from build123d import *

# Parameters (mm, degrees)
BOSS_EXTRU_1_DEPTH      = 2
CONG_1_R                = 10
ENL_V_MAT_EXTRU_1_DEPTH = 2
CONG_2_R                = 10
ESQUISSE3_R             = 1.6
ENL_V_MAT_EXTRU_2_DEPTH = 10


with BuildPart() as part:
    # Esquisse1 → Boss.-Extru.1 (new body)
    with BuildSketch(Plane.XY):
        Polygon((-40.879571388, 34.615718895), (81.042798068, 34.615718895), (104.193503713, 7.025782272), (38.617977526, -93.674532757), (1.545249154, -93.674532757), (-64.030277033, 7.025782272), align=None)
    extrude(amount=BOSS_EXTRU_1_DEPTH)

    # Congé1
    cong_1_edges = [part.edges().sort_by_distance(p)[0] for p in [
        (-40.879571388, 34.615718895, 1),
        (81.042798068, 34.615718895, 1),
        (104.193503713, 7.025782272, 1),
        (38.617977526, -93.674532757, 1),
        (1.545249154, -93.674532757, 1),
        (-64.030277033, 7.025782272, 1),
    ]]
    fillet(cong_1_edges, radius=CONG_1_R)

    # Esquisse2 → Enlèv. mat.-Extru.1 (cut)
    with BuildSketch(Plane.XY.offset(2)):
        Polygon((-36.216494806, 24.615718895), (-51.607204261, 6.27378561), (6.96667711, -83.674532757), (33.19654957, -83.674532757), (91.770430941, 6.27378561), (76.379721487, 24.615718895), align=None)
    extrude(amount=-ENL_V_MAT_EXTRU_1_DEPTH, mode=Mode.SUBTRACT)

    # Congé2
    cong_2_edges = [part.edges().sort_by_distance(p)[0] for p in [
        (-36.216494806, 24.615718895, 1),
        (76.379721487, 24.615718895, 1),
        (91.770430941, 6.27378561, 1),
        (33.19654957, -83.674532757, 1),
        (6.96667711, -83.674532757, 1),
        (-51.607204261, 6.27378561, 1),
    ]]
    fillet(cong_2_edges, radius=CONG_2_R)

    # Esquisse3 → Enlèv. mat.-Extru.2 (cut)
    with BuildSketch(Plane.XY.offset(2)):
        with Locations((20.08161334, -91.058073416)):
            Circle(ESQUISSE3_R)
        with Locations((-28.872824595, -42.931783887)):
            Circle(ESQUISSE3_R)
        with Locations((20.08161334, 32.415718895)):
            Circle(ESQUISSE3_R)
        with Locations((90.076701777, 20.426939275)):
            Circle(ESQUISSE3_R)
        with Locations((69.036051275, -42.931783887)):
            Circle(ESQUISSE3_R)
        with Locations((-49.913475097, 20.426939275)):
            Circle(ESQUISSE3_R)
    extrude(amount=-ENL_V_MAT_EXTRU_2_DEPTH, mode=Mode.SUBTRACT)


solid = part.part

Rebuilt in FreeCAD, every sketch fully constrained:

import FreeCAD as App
import Part
import Sketcher
from FreeCAD import Vector
Q = App.Units.Quantity


def edges_at(feature, points):
    """Names of the edges that pass closest to the given points."""
    edges = feature.Shape.Edges
    near = lambda p: min(range(len(edges)), key=lambda i: edges[i].distToShape(Part.Vertex(*p))[0])
    return sorted({f"Edge{near(p) + 1}" for p in points})

doc = App.newDocument("Part")
body = doc.addObject("PartDesign::Body", "Body")

# Sketch on XY plane
sketch1 = body.newObject("Sketcher::SketchObject", "Sketch")
sketch1.AttachmentSupport = (doc.getObject("XY_Plane"), [""])
sketch1.MapMode = "FlatFace"
sketch1.addGeometry(Part.LineSegment(Vector(81, 35, 0), Vector(-41, 35, 0)), False)
sketch1.addGeometry(Part.LineSegment(Vector(-41, 35, 0), Vector(-64, 7, 0)), False)
sketch1.addGeometry(Part.LineSegment(Vector(-64, 7, 0), Vector(2, -94, 0)), False)
sketch1.addGeometry(Part.LineSegment(Vector(2, -94, 0), Vector(39, -94, 0)), False)
sketch1.addGeometry(Part.LineSegment(Vector(39, -94, 0), Vector(104, 7, 0)), False)
sketch1.addGeometry(Part.LineSegment(Vector(104, 7, 0), Vector(81, 35, 0)), False)
sketch1.addConstraint(Sketcher.Constraint("Coincident", 0, 2, 1, 1))
sketch1.addConstraint(Sketcher.Constraint("Coincident", 1, 2, 2, 1))
sketch1.addConstraint(Sketcher.Constraint("Coincident", 2, 2, 3, 1))
sketch1.addConstraint(Sketcher.Constraint("Coincident", 3, 2, 4, 1))
sketch1.addConstraint(Sketcher.Constraint("Coincident", 4, 2, 5, 1))
sketch1.addConstraint(Sketcher.Constraint("Coincident", 5, 2, 0, 1))
sketch1.addConstraint(Sketcher.Constraint("Horizontal", 0))
sketch1.addConstraint(Sketcher.Constraint("Horizontal", 3))
sketch1.addConstraint(Sketcher.Constraint("Horizontal", 1, 2, 4, 2))
sketch1.addConstraint(Sketcher.Constraint("Equal", 2, 4))
sketch1.addConstraint(Sketcher.Constraint("Equal", 1, 5))
sketch1.addConstraint(Sketcher.Constraint("Angle", 1, Q("-130 deg")))
sketch1.addConstraint(Sketcher.Constraint("DistanceX", 0, 2, 0, 1, 121.922369))
sketch1.addConstraint(Sketcher.Constraint("DistanceX", 3, 1, 3, 2, 37.072728))
sketch1.addConstraint(Sketcher.Constraint("DistanceX", -1, 1, 5, 2, 81.042798))
sketch1.addConstraint(Sketcher.Constraint("DistanceY", -1, 1, 0, 2, 34.615719))
sketch1.addConstraint(Sketcher.Constraint("DistanceY", 2, 2, 0, 2, 128.290252))
sketch1.addConstraint(Sketcher.Constraint("DistanceX", 1, 2, 4, 2, 168.223781))
pad1 = body.newObject("PartDesign::Pad", "Pad")
pad1.Profile = sketch1
pad1.Length = 2
doc.recompute()

fillet = body.newObject("PartDesign::Fillet", "Fillet")
fillet.Base = (pad1, edges_at(pad1, [
    (-40.88, 34.616, 1),
    (81.043, 34.616, 1),
    (104.194, 7.026, 1),
    (38.618, -93.675, 1),
    (1.545, -93.675, 1),
    (-64.03, 7.026, 1),
]))
fillet.Radius = 10

# Sketch on XY plane
sketch2 = body.newObject("Sketcher::SketchObject", "Sketch001")
sketch2.AttachmentSupport = (doc.getObject("XY_Plane"), [""])
sketch2.MapMode = "FlatFace"
sketch2.AttachmentOffset = App.Placement(Vector(0, 0, 2), App.Rotation())
sketch2.addGeometry(Part.LineSegment(Vector(-36, 25, 0), Vector(-52, 6, 0)), False)
sketch2.addGeometry(Part.LineSegment(Vector(-52, 6, 0), Vector(7, -84, 0)), False)
sketch2.addGeometry(Part.LineSegment(Vector(7, -84, 0), Vector(33, -84, 0)), False)
sketch2.addGeometry(Part.LineSegment(Vector(33, -84, 0), Vector(92, 6, 0)), False)
sketch2.addGeometry(Part.LineSegment(Vector(92, 6, 0), Vector(76, 25, 0)), False)
sketch2.addGeometry(Part.LineSegment(Vector(76, 25, 0), Vector(-36, 25, 0)), False)
sketch2.addConstraint(Sketcher.Constraint("Coincident", 0, 2, 1, 1))
sketch2.addConstraint(Sketcher.Constraint("Coincident", 1, 2, 2, 1))
sketch2.addConstraint(Sketcher.Constraint("Coincident", 2, 2, 3, 1))
sketch2.addConstraint(Sketcher.Constraint("Coincident", 3, 2, 4, 1))
sketch2.addConstraint(Sketcher.Constraint("Coincident", 4, 2, 5, 1))
sketch2.addConstraint(Sketcher.Constraint("Coincident", 5, 2, 0, 1))
sketch2.addConstraint(Sketcher.Constraint("Horizontal", 2))
sketch2.addConstraint(Sketcher.Constraint("Horizontal", 5))
sketch2.addConstraint(Sketcher.Constraint("Horizontal", 0, 2, 3, 2))
sketch2.addConstraint(Sketcher.Constraint("Equal", 1, 3))
sketch2.addConstraint(Sketcher.Constraint("Equal", 0, 4))
sketch2.addConstraint(Sketcher.Constraint("Angle", 0, Q("-130 deg")))
sketch2.addConstraint(Sketcher.Constraint("DistanceX", 2, 1, 2, 2, 26.229872))
sketch2.addConstraint(Sketcher.Constraint("DistanceX", 5, 2, 5, 1, 112.596216))
sketch2.addConstraint(Sketcher.Constraint("DistanceX", -1, 1, 2, 2, 33.19655))
sketch2.addConstraint(Sketcher.Constraint("DistanceX", -1, 1, 3, 2, 91.770431))
sketch2.addConstraint(Sketcher.Constraint("DistanceY", -1, 1, 4, 2, 24.615719))
sketch2.addConstraint(Sketcher.Constraint("DistanceY", 1, 2, 0, 2, 89.948318))
pocket1 = body.newObject("PartDesign::Pocket", "Pocket")
pocket1.Profile = sketch2
pocket1.Length = 2
doc.recompute()

fillet2 = body.newObject("PartDesign::Fillet", "Fillet001")
fillet2.Base = (pocket1, edges_at(pocket1, [
    (-36.216, 24.616, 1),
    (76.38, 24.616, 1),
    (91.77, 6.274, 1),
    (33.197, -83.675, 1),
    (6.967, -83.675, 1),
    (-51.607, 6.274, 1),
]))
fillet2.Radius = 10

# Sketch on XY plane
sketch3 = body.newObject("Sketcher::SketchObject", "Sketch002")
sketch3.AttachmentSupport = (doc.getObject("XY_Plane"), [""])
sketch3.MapMode = "FlatFace"
sketch3.AttachmentOffset = App.Placement(Vector(0, 0, 2), App.Rotation())
sketch3.addGeometry(Part.Circle(Vector(20.1, -91.1, 0), Vector(0, 0, 1), 1.6), False)
sketch3.addGeometry(Part.Circle(Vector(-28.9, -42.9, 0), Vector(0, 0, 1), 1.6), False)
sketch3.addGeometry(Part.Circle(Vector(20.1, 32.4, 0), Vector(0, 0, 1), 1.6), False)
sketch3.addGeometry(Part.Circle(Vector(90.1, 20.4, 0), Vector(0, 0, 1), 1.6), False)
sketch3.addGeometry(Part.Circle(Vector(69, -42.9, 0), Vector(0, 0, 1), 1.6), False)
sketch3.addGeometry(Part.Circle(Vector(-49.9, 20.4, 0), Vector(0, 0, 1), 1.6), False)
sketch3.addConstraint(Sketcher.Constraint("Equal", 0, 1))
sketch3.addConstraint(Sketcher.Constraint("Equal", 1, 2))
sketch3.addConstraint(Sketcher.Constraint("Equal", 2, 3))
sketch3.addConstraint(Sketcher.Constraint("Equal", 3, 4))
sketch3.addConstraint(Sketcher.Constraint("Equal", 4, 5))
sketch3.addConstraint(Sketcher.Constraint("Horizontal", 1, 3, 4, 3))
sketch3.addConstraint(Sketcher.Constraint("Horizontal", 3, 3, 5, 3))
sketch3.addConstraint(Sketcher.Constraint("Vertical", 0, 3, 2, 3))
sketch3.addConstraint(Sketcher.Constraint("Diameter", 0, 3.2))
sketch3.addConstraint(Sketcher.Constraint("DistanceX", -1, 1, 3, 3, 90.076702))
sketch3.addConstraint(Sketcher.Constraint("DistanceY", -1, 1, 2, 3, 32.415719))
sketch3.addConstraint(Sketcher.Constraint("DistanceY", -1, 1, 3, 3, 20.426939))
sketch3.addConstraint(Sketcher.Constraint("DistanceX", -1, 1, 4, 3, 69.036051))
sketch3.addConstraint(Sketcher.Constraint("DistanceY", 0, 3, 1, 3, 48.12629))
sketch3.addConstraint(Sketcher.Constraint("DistanceX", 2, 3, 3, 3, 69.995088))
sketch3.addConstraint(Sketcher.Constraint("DistanceX", 5, 3, 1, 3, 21.040651))
sketch3.addConstraint(Sketcher.Constraint("DistanceX", 5, 3, 2, 3, 69.995088))
sketch3.addConstraint(Sketcher.Constraint("DistanceY", 0, 3, -1, 1, 91.058073))
pocket2 = body.newObject("PartDesign::Pocket", "Pocket001")
pocket2.Profile = sketch3
pocket2.Length = 10

doc.recompute()
